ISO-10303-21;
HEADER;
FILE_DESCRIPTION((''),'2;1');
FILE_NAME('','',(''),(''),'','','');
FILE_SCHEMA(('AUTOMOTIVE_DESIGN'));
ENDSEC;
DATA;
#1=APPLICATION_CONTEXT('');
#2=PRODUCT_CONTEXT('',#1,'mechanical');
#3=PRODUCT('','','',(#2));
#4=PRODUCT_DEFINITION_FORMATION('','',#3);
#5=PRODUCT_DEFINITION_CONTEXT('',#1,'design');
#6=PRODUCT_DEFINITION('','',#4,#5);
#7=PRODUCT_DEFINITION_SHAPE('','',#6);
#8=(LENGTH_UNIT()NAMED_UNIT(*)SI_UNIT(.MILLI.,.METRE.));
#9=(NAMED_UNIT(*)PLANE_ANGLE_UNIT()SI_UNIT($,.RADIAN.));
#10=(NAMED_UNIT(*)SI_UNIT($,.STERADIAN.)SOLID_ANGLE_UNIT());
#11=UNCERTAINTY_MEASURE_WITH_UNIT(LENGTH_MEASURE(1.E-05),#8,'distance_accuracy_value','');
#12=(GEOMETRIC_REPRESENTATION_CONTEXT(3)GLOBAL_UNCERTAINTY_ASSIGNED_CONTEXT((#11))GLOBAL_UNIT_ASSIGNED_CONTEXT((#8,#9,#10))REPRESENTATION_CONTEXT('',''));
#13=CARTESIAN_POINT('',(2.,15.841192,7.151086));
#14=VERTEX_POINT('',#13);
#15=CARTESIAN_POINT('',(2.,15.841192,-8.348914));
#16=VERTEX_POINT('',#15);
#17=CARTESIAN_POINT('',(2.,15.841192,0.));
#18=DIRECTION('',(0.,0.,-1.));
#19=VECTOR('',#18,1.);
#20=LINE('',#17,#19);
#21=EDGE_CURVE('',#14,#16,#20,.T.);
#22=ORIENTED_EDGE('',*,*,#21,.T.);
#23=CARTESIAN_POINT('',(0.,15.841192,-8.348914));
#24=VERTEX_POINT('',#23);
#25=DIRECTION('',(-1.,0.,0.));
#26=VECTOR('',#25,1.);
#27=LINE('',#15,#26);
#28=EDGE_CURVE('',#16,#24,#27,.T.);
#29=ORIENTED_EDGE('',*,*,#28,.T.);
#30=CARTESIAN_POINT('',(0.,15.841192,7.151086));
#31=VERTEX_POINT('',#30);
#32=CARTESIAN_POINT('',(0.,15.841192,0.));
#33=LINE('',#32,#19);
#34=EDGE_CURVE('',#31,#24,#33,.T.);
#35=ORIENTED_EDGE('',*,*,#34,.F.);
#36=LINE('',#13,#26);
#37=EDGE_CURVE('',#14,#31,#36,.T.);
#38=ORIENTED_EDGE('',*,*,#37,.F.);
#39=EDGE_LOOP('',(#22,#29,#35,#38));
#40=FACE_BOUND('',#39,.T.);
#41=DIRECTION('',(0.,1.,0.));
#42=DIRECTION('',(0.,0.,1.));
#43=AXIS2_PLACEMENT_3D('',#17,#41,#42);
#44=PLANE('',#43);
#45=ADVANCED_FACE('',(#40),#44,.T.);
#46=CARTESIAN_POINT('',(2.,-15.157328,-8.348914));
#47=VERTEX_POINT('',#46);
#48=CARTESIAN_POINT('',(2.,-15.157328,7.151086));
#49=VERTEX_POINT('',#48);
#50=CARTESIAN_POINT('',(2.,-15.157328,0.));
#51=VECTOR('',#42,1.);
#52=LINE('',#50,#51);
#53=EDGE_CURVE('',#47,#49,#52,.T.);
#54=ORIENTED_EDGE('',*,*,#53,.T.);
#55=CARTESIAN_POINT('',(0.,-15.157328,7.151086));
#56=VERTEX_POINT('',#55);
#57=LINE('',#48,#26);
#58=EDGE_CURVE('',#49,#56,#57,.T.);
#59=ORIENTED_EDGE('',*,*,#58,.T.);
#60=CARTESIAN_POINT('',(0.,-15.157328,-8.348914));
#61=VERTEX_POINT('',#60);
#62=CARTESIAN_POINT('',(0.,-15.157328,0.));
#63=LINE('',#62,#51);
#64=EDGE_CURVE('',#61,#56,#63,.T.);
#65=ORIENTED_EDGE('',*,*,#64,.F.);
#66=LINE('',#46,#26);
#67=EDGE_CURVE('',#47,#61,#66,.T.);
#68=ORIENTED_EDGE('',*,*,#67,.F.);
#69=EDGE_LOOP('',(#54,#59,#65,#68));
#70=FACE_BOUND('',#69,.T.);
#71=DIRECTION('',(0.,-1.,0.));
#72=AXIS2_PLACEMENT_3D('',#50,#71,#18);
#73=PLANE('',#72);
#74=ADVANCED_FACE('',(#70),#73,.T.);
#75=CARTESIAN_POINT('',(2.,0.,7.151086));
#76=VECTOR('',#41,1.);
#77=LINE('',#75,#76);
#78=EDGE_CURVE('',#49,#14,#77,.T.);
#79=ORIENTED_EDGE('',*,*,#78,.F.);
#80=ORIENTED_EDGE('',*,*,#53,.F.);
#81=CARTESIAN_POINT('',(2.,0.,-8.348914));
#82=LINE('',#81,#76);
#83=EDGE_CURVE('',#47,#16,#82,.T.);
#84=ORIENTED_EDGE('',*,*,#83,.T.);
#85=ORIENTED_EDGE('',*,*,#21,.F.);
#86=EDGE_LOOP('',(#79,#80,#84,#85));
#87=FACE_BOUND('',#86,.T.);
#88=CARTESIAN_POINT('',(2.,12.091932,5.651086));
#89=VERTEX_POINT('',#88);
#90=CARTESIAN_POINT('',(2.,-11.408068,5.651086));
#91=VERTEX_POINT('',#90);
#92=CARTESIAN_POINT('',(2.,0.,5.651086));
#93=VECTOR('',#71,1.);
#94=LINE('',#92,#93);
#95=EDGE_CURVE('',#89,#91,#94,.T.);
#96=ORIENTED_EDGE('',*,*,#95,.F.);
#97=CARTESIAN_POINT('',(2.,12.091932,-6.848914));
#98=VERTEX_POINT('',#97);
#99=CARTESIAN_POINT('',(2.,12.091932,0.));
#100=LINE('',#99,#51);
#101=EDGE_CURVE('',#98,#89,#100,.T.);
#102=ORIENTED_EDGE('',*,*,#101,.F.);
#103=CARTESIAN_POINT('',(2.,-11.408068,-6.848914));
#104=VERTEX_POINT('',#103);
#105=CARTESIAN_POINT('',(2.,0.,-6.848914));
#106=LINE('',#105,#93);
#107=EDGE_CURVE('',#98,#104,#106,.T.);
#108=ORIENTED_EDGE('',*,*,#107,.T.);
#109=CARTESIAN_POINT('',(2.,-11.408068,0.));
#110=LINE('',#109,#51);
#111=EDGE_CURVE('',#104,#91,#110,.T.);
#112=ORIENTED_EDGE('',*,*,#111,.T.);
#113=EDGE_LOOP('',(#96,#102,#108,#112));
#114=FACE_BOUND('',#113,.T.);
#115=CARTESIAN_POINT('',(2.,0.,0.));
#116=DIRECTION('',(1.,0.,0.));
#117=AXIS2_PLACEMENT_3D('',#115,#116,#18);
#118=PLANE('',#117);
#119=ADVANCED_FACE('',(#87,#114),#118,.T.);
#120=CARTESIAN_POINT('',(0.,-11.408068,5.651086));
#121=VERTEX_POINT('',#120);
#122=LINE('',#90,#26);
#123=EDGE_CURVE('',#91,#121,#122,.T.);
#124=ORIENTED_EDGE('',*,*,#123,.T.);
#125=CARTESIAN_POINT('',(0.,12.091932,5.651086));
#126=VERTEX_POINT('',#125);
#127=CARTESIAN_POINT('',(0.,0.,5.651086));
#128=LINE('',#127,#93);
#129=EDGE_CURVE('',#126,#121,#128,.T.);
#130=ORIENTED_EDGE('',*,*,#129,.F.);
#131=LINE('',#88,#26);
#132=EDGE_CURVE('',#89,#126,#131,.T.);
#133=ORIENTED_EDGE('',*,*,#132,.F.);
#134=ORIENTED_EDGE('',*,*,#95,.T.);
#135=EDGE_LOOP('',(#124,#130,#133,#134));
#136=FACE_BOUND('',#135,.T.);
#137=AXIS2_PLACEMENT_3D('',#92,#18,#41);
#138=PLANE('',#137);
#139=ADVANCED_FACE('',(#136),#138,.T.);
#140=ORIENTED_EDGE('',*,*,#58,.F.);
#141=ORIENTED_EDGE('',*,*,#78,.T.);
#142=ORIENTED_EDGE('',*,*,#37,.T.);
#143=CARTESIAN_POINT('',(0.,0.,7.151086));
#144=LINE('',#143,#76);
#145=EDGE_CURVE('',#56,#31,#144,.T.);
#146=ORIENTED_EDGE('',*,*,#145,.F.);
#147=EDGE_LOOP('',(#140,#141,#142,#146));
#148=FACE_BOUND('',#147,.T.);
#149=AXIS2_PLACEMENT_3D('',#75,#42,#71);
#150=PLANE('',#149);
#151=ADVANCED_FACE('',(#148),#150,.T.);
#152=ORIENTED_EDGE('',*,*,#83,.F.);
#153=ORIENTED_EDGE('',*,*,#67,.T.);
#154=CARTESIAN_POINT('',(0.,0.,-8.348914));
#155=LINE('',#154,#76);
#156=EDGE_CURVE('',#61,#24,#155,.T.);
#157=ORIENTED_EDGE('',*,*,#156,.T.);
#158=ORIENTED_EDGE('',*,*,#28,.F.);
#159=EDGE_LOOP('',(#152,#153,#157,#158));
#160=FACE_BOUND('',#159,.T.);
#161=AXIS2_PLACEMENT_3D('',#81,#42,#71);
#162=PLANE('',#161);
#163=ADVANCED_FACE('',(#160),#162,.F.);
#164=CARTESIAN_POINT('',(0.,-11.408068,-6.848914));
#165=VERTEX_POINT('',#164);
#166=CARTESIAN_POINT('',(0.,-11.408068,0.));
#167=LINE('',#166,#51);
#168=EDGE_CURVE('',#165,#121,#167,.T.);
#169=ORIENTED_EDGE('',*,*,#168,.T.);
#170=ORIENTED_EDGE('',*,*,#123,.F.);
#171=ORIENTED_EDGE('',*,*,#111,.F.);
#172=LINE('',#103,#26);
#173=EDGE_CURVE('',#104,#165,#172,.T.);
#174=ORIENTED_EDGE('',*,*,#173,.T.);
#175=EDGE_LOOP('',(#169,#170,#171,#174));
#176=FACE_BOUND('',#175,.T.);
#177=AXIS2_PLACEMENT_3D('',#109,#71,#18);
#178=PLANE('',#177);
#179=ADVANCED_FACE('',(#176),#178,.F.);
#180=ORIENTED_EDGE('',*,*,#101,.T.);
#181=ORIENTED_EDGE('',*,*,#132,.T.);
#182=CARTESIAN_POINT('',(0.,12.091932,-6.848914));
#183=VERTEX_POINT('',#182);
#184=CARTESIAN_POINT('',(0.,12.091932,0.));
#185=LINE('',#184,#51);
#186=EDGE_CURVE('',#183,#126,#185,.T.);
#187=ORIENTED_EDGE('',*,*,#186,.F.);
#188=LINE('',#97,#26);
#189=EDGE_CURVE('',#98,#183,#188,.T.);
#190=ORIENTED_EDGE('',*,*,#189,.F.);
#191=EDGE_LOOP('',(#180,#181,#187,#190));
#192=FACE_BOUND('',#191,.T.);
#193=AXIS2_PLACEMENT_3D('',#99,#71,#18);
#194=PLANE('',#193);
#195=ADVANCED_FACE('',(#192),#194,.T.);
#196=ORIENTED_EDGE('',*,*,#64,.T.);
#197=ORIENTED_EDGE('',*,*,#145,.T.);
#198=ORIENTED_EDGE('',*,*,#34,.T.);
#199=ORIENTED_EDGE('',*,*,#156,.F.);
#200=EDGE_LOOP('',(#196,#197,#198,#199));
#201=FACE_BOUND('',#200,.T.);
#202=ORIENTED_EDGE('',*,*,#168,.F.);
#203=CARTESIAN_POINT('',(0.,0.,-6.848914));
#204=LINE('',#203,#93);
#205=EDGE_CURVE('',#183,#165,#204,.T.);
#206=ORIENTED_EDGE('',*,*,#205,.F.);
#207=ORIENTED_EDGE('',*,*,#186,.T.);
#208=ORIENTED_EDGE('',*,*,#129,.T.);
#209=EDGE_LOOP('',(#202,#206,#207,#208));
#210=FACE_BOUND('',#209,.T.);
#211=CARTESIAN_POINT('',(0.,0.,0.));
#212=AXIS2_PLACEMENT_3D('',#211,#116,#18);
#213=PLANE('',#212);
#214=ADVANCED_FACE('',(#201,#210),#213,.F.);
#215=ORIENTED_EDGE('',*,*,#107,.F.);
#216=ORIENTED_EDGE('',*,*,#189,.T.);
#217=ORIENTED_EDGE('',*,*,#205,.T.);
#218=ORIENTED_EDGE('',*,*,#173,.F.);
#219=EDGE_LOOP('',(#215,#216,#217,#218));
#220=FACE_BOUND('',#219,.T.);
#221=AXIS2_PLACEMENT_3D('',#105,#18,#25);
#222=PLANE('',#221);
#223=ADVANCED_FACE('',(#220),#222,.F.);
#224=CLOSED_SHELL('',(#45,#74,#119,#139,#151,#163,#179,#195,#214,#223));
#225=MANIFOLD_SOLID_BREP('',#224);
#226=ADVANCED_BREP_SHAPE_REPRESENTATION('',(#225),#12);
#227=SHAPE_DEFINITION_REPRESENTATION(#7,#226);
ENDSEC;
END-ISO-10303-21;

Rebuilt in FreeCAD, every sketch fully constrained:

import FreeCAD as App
import Part
import Sketcher

doc = App.newDocument("Part")
params = doc.addObject("Spreadsheet::Sheet", "Params")
for row, (alias, value) in enumerate([
    ("sketch1_width", "23.5 mm"),
    ("sketch1_height", "15.5 mm"),
    ("sketch1_height2", "12.5 mm"),
    ("pad1_length", "2 mm"),
], start=1):
    params.set(f"A{row}", alias)
    params.set(f"B{row}", "=" + value)
    params.setAlias(f"B{row}", alias)

body = doc.addObject("PartDesign::Body", "Body")

# Sketch on YZ plane
sketch1 = body.newObject("Sketcher::SketchObject", "Sketch")
sketch1.AttachmentSupport = (doc.getObject("YZ_Plane"), [""])
sketch1.MapMode = "FlatFace"
sketch1.addGeometry([
    Part.LineSegment(App.Vector(16, -8, 0), App.Vector(16, 7, 0)),  # 0
    Part.LineSegment(App.Vector(16, 7, 0), App.Vector(-15, 7, 0)),  # 1
    Part.LineSegment(App.Vector(-15, 7, 0), App.Vector(-15, -8, 0)),  # 2
    Part.LineSegment(App.Vector(-15, -8, 0), App.Vector(16, -8, 0)),  # 3
    Part.LineSegment(App.Vector(-11, -7, 0), App.Vector(-11, 6, 0)),  # 4
    Part.LineSegment(App.Vector(-11, 6, 0), App.Vector(12, 6, 0)),  # 5
    Part.LineSegment(App.Vector(12, 6, 0), App.Vector(12, -7, 0)),  # 6
    Part.LineSegment(App.Vector(12, -7, 0), App.Vector(-11, -7, 0)),  # 7
], False)
sketch1.addConstraint([
    Sketcher.Constraint("Coincident", 0, 2, 1, 1),
    Sketcher.Constraint("Coincident", 1, 2, 2, 1),
    Sketcher.Constraint("Coincident", 2, 2, 3, 1),
    Sketcher.Constraint("Coincident", 3, 2, 0, 1),
    Sketcher.Constraint("Coincident", 4, 2, 5, 1),
    Sketcher.Constraint("Coincident", 5, 2, 6, 1),
    Sketcher.Constraint("Coincident", 6, 2, 7, 1),
    Sketcher.Constraint("Coincident", 7, 2, 4, 1),
    Sketcher.Constraint("Vertical", 0),
    Sketcher.Constraint("Horizontal", 1),
    Sketcher.Constraint("Vertical", 2),
    Sketcher.Constraint("Horizontal", 3),
    Sketcher.Constraint("Vertical", 4),
    Sketcher.Constraint("Horizontal", 5),
    Sketcher.Constraint("Vertical", 6),
    Sketcher.Constraint("Horizontal", 7),
    Sketcher.Constraint("DistanceX", 5, 1, 5, 2, 23.5),
    Sketcher.Constraint("DistanceY", 0, 1, 0, 2, 15.5),
    Sketcher.Constraint("DistanceY", 4, 1, 4, 2, 12.5),
    Sketcher.Constraint("DistanceY", 2, 2, 4, 2, 14.0),
    Sketcher.Constraint("DistanceX", 1, 2, 1, 1, 30.99852),
    Sketcher.Constraint("DistanceX", -1, 1, 0, 2, 15.841192),
    Sketcher.Constraint("DistanceX", 4, 2, -1, 1, 11.408068),
    Sketcher.Constraint("DistanceY", -1, 1, 0, 2, 7.151086),
])
sketch1.setExpression("Constraints[16]", "Params.sketch1_width")
sketch1.setExpression("Constraints[17]", "Params.sketch1_height")
sketch1.setExpression("Constraints[18]", "Params.sketch1_height2")
pad1 = body.newObject("PartDesign::Pad", "Pad")
pad1.Profile = sketch1
pad1.setExpression("Length", "Params.pad1_length")

doc.recompute()
